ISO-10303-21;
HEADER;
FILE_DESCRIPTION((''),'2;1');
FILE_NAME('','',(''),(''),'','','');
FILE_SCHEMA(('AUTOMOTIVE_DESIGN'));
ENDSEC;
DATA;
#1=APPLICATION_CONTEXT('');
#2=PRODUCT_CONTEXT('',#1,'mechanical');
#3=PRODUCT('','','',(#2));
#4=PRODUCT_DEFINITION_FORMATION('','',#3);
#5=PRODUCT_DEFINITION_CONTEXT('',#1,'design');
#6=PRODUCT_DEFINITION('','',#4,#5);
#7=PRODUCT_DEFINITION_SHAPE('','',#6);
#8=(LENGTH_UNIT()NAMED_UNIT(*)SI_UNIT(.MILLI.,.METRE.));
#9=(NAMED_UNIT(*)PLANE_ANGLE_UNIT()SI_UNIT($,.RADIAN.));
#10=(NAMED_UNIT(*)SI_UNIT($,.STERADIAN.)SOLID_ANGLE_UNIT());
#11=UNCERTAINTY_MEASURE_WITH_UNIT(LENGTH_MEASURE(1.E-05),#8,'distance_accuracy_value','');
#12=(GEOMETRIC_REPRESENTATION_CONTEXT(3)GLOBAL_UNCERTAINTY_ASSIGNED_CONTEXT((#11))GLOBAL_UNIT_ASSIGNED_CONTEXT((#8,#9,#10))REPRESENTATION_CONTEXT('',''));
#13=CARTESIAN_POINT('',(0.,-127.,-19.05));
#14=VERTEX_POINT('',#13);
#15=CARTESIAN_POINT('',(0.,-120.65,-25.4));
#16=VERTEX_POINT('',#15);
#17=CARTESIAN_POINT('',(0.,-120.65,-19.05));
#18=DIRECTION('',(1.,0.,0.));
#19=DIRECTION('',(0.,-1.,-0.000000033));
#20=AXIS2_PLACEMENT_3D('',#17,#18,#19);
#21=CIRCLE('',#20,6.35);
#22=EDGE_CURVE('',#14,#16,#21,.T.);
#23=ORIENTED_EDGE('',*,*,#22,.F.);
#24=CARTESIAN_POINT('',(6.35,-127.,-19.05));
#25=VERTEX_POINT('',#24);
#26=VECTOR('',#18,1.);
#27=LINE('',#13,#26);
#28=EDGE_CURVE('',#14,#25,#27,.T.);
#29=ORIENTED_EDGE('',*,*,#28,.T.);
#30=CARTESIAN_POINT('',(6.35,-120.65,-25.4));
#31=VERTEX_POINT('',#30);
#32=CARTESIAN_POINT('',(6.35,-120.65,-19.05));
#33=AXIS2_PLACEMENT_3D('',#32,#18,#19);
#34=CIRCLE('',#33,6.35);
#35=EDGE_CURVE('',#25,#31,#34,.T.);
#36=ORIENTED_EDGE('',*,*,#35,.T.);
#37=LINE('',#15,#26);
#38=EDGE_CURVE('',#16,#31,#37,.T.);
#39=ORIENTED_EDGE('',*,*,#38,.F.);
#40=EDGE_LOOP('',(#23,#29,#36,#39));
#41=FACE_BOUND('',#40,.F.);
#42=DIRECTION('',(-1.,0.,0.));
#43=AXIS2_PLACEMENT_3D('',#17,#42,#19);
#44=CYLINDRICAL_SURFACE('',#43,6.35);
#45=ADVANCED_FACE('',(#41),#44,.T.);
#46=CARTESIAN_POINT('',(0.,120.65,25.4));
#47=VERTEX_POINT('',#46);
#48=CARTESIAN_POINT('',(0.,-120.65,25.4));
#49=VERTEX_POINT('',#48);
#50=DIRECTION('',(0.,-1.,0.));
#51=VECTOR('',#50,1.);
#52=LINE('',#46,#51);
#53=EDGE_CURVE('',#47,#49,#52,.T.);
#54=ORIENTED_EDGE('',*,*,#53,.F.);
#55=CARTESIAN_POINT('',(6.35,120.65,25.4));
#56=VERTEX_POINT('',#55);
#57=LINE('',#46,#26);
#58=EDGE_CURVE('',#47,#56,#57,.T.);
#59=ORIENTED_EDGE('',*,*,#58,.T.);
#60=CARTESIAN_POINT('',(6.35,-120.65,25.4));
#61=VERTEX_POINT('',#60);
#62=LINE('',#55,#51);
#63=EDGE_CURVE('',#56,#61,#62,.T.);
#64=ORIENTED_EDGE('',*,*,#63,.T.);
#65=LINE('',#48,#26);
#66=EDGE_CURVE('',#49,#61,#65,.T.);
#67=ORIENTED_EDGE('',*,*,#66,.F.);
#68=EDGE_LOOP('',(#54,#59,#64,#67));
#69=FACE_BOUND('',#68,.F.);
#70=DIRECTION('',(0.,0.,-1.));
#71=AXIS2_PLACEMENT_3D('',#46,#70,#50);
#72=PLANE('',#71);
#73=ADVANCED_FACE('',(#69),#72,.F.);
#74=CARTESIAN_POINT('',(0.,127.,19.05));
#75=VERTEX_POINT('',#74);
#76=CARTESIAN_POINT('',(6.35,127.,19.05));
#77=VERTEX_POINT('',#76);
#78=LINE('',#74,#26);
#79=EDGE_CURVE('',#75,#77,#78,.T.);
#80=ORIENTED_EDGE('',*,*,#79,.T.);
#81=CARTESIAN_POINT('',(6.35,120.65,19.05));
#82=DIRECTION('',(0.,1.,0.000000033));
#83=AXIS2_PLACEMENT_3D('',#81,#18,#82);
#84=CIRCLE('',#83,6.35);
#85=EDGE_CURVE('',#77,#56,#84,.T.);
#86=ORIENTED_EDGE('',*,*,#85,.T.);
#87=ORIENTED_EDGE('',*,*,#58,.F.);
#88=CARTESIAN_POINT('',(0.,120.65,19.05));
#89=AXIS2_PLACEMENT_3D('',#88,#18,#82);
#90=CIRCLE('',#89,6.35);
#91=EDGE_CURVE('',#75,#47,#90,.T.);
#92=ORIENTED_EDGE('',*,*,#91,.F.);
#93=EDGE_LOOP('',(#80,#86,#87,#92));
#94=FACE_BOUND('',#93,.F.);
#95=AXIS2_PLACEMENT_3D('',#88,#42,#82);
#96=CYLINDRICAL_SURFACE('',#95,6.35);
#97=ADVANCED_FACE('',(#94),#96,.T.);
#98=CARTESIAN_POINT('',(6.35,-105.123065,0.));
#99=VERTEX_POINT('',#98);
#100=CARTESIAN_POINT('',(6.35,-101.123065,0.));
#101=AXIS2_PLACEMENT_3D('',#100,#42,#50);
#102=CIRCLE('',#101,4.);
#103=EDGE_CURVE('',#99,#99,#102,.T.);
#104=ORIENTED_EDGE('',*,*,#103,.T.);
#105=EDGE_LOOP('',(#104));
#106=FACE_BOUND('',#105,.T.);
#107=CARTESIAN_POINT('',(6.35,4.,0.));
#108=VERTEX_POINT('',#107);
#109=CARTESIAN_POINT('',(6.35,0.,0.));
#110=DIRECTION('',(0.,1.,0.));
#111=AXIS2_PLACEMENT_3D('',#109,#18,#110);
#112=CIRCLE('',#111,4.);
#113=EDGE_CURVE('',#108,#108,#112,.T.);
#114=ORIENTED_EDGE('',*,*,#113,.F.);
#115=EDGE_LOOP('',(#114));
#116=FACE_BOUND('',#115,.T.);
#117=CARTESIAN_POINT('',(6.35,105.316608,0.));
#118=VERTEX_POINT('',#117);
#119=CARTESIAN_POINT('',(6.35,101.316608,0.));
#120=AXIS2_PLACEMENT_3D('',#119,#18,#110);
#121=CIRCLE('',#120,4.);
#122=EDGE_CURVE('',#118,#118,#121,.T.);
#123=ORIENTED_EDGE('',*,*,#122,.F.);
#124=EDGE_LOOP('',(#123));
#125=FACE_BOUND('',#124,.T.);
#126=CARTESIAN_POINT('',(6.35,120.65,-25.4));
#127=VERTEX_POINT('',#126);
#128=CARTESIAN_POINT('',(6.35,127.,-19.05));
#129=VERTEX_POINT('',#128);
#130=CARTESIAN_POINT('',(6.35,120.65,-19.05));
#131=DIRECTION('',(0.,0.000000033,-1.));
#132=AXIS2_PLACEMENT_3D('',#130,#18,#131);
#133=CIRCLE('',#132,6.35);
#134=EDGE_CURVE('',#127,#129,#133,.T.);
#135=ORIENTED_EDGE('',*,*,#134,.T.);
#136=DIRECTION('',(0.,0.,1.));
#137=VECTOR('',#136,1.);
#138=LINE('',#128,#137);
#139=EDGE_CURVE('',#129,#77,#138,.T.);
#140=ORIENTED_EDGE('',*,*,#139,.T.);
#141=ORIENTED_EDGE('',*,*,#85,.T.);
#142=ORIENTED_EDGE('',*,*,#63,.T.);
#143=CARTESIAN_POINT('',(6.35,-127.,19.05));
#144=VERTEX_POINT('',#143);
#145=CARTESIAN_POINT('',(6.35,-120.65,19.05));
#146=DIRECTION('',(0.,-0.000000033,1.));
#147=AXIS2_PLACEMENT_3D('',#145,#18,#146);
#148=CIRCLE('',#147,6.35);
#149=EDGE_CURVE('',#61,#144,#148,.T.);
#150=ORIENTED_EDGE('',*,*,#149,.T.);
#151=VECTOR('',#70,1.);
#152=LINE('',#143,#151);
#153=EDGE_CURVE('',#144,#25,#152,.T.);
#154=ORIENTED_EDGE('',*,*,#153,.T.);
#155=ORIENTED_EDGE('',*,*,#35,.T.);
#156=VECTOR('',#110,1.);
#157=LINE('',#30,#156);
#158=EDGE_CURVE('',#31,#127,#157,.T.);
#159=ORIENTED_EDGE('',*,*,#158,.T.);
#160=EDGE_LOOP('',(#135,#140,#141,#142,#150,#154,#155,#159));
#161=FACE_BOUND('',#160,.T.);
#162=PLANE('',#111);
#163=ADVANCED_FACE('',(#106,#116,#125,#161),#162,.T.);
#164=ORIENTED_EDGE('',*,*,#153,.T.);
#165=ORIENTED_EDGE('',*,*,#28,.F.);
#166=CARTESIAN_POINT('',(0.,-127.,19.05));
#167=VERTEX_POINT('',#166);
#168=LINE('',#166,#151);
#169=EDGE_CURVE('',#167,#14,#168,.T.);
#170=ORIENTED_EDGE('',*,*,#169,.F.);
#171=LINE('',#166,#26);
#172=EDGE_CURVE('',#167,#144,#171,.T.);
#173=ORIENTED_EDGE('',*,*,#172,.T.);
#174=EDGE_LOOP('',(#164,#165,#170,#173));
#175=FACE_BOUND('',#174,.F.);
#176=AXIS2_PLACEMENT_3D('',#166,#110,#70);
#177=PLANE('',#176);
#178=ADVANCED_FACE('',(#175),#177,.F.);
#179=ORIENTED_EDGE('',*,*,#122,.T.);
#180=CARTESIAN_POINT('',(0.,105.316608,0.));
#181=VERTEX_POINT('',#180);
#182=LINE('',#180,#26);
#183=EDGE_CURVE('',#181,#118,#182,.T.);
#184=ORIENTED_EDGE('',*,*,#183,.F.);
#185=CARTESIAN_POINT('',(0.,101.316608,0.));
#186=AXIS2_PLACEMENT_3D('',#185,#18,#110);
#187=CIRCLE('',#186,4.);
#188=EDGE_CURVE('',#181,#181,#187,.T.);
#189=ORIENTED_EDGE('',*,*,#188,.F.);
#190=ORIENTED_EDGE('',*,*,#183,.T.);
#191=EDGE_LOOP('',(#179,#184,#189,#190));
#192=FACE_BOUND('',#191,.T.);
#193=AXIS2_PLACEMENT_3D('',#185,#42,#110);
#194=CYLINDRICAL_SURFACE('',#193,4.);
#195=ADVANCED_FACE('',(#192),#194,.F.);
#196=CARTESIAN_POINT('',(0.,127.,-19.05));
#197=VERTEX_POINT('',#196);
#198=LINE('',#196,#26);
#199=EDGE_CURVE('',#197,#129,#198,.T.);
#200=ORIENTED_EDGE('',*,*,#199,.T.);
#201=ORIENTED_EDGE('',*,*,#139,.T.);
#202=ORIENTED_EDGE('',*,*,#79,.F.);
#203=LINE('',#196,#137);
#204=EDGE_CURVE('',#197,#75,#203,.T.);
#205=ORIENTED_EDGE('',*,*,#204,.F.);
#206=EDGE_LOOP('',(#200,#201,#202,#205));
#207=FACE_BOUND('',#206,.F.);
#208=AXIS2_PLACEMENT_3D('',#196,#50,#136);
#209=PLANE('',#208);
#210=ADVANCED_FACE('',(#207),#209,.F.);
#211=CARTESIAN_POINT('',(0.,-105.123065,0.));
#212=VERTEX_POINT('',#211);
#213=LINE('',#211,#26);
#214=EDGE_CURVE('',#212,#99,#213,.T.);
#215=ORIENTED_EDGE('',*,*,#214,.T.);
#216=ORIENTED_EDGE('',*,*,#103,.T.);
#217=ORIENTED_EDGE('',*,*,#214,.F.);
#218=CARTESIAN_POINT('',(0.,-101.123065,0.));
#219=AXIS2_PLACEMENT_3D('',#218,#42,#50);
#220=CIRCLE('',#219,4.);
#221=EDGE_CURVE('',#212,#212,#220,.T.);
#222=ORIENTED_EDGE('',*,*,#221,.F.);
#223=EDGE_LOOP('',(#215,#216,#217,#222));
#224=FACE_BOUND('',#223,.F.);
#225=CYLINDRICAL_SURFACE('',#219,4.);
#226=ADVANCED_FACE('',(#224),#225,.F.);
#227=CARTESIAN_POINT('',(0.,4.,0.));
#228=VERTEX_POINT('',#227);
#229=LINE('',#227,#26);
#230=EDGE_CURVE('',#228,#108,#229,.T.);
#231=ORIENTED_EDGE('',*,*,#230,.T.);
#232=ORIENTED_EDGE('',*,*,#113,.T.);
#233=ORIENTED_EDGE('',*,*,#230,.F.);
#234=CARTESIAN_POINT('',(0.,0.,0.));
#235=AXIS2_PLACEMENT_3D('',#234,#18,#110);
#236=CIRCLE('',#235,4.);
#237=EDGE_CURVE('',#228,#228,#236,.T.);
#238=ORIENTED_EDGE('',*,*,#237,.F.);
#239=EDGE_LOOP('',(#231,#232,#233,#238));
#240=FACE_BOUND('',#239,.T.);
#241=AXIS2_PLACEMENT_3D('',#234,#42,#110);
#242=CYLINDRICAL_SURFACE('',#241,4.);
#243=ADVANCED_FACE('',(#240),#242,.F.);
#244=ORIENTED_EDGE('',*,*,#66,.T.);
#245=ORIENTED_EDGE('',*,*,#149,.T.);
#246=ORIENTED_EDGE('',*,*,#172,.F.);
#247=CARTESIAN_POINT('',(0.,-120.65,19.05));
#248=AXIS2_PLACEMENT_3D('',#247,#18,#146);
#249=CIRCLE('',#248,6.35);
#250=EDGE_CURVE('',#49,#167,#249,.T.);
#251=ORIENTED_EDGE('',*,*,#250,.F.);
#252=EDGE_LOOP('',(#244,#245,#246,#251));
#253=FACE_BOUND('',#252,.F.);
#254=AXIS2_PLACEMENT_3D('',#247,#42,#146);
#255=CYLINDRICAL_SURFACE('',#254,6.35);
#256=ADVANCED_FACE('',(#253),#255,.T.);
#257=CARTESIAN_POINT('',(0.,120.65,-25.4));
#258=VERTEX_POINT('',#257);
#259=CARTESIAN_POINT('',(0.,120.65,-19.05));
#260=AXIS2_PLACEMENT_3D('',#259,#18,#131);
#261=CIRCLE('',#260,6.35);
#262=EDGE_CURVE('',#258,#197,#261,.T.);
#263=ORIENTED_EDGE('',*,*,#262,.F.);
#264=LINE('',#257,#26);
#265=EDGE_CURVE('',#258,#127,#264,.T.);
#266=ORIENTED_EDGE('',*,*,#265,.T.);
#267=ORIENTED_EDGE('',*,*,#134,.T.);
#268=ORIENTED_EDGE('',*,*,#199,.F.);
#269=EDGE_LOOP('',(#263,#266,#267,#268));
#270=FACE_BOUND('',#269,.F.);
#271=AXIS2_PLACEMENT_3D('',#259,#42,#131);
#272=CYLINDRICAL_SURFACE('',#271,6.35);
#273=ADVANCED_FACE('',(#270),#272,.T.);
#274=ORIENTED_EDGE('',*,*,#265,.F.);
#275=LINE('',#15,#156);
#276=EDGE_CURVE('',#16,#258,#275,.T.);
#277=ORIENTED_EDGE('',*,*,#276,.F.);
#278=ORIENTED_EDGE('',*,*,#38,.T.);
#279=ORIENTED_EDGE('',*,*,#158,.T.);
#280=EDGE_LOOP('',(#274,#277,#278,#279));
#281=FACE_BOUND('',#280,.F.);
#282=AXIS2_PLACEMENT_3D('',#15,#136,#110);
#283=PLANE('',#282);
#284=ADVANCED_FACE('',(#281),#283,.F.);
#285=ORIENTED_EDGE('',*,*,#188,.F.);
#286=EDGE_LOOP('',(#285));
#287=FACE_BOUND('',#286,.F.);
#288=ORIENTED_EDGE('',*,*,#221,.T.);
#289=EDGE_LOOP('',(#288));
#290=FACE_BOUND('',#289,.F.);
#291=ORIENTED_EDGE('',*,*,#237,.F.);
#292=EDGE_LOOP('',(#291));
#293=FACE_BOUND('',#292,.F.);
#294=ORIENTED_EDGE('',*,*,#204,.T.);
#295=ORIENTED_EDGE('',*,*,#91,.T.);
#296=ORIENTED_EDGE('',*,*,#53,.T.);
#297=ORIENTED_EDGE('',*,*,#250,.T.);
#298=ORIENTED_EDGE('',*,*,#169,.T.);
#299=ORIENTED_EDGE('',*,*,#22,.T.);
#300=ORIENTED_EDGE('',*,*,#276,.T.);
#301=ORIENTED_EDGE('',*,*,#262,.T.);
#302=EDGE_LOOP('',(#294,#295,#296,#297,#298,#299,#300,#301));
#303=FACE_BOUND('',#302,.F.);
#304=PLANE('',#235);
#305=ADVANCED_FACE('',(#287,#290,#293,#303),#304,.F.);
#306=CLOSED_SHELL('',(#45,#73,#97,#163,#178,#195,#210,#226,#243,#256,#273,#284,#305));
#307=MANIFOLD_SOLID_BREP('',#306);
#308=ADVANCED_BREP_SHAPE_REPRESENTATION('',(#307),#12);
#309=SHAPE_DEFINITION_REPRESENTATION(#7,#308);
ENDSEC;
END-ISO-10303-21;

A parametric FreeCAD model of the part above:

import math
import FreeCAD as App
import Part
import Sketcher
Q = App.Units.Quantity

doc = App.newDocument("Part")
body = doc.addObject("PartDesign::Body", "Body")

# Sketch on YZ plane
sketch1 = body.newObject("Sketcher::SketchObject", "Sketch")
sketch1.AttachmentSupport = (doc.getObject("YZ_Plane"), [""])
sketch1.MapMode = "FlatFace"
sketch1.addGeometry(Part.LineSegment(App.Vector(120.7, 25.4, 0), App.Vector(-120.7, 25.4, 0)), False)
sketch1.addGeometry(Part.ArcOfCircle(Part.Circle(App.Vector(-120.6, 19, 0), App.Vector(0, 0, 1), 6.4), math.radians(90), math.radians(180)), False)
sketch1.addGeometry(Part.LineSegment(App.Vector(-127, 19.1, 0), App.Vector(-127, -19.1, 0)), False)
sketch1.addGeometry(Part.ArcOfCircle(Part.Circle(App.Vector(-120.6, -19, 0), App.Vector(0, 0, 1), 6.4), math.radians(-180), math.radians(-90)), False)
sketch1.addGeometry(Part.LineSegment(App.Vector(-120.7, -25.4, 0), App.Vector(120.7, -25.4, 0)), False)
sketch1.addGeometry(Part.ArcOfCircle(Part.Circle(App.Vector(120.6, -19, 0), App.Vector(0, 0, 1), 6.4), math.radians(-90), math.radians(0)), False)
sketch1.addGeometry(Part.LineSegment(App.Vector(127, -19.1, 0), App.Vector(127, 19.1, 0)), False)
sketch1.addGeometry(Part.ArcOfCircle(Part.Circle(App.Vector(120.6, 19, 0), App.Vector(0, 0, 1), 6.4), math.radians(0), math.radians(90)), False)
sketch1.addGeometry(Part.Circle(App.Vector(-101.1, 0, 0), App.Vector(0, 0, 1), 4), False)
sketch1.addGeometry(Part.Circle(App.Vector(0, 0, 0), App.Vector(0, 0, 1), 4), False)
sketch1.addGeometry(Part.Circle(App.Vector(101.3, 0, 0), App.Vector(0, 0, 1), 4), False)
sketch1.addConstraint(Sketcher.Constraint("Tangent", 0, 2, 1, 1))
sketch1.addConstraint(Sketcher.Constraint("Tangent", 1, 2, 2, 1))
sketch1.addConstraint(Sketcher.Constraint("Tangent", 2, 2, 3, 1))
sketch1.addConstraint(Sketcher.Constraint("Tangent", 3, 2, 4, 1))
sketch1.addConstraint(Sketcher.Constraint("Tangent", 4, 2, 5, 1))
sketch1.addConstraint(Sketcher.Constraint("Tangent", 5, 2, 6, 1))
sketch1.addConstraint(Sketcher.Constraint("Tangent", 6, 2, 7, 1))
sketch1.addConstraint(Sketcher.Constraint("Tangent", 7, 2, 0, 1))
sketch1.addConstraint(Sketcher.Constraint("Horizontal", 0))
sketch1.addConstraint(Sketcher.Constraint("Vertical", 2))
sketch1.addConstraint(Sketcher.Constraint("Horizontal", 4))
sketch1.addConstraint(Sketcher.Constraint("Vertical", 6))
sketch1.addConstraint(Sketcher.Constraint("Coincident", 9, 3, -1, 1))
sketch1.addConstraint(Sketcher.Constraint("Equal", 1, 3))
sketch1.addConstraint(Sketcher.Constraint("Equal", 3, 5))
sketch1.addConstraint(Sketcher.Constraint("Equal", 5, 7))
sketch1.addConstraint(Sketcher.Constraint("Equal", 8, 9))
sketch1.addConstraint(Sketcher.Constraint("Equal", 9, 10))
sketch1.addConstraint(Sketcher.Constraint("Symmetric", 1, 3, 5, 3, -1, 1))
sketch1.addConstraint(Sketcher.Constraint("PointOnObject", 8, 3, -1))
sketch1.addConstraint(Sketcher.Constraint("PointOnObject", 10, 3, -1))
sketch1.addConstraint(Sketcher.Constraint("Radius", 1, Q("0.25 in")))
sketch1.addConstraint(Sketcher.Constraint("DistanceX", 0, 2, 0, 1, Q("9.5 in")))
sketch1.addConstraint(Sketcher.Constraint("DistanceY", 2, 2, 2, 1, Q("1.5 in")))
sketch1.addConstraint(Sketcher.Constraint("Diameter", 8, Q("8 mm")))
sketch1.addConstraint(Sketcher.Constraint("DistanceX", -1, 1, 10, 3, Q("101.316608 mm")))
sketch1.addConstraint(Sketcher.Constraint("DistanceX", 8, 3, -1, 1, Q("101.123065 mm")))
pad1 = body.newObject("PartDesign::Pad", "Pad")
pad1.Profile = sketch1
pad1.Length = Q("0.25 in")

doc.recompute()
